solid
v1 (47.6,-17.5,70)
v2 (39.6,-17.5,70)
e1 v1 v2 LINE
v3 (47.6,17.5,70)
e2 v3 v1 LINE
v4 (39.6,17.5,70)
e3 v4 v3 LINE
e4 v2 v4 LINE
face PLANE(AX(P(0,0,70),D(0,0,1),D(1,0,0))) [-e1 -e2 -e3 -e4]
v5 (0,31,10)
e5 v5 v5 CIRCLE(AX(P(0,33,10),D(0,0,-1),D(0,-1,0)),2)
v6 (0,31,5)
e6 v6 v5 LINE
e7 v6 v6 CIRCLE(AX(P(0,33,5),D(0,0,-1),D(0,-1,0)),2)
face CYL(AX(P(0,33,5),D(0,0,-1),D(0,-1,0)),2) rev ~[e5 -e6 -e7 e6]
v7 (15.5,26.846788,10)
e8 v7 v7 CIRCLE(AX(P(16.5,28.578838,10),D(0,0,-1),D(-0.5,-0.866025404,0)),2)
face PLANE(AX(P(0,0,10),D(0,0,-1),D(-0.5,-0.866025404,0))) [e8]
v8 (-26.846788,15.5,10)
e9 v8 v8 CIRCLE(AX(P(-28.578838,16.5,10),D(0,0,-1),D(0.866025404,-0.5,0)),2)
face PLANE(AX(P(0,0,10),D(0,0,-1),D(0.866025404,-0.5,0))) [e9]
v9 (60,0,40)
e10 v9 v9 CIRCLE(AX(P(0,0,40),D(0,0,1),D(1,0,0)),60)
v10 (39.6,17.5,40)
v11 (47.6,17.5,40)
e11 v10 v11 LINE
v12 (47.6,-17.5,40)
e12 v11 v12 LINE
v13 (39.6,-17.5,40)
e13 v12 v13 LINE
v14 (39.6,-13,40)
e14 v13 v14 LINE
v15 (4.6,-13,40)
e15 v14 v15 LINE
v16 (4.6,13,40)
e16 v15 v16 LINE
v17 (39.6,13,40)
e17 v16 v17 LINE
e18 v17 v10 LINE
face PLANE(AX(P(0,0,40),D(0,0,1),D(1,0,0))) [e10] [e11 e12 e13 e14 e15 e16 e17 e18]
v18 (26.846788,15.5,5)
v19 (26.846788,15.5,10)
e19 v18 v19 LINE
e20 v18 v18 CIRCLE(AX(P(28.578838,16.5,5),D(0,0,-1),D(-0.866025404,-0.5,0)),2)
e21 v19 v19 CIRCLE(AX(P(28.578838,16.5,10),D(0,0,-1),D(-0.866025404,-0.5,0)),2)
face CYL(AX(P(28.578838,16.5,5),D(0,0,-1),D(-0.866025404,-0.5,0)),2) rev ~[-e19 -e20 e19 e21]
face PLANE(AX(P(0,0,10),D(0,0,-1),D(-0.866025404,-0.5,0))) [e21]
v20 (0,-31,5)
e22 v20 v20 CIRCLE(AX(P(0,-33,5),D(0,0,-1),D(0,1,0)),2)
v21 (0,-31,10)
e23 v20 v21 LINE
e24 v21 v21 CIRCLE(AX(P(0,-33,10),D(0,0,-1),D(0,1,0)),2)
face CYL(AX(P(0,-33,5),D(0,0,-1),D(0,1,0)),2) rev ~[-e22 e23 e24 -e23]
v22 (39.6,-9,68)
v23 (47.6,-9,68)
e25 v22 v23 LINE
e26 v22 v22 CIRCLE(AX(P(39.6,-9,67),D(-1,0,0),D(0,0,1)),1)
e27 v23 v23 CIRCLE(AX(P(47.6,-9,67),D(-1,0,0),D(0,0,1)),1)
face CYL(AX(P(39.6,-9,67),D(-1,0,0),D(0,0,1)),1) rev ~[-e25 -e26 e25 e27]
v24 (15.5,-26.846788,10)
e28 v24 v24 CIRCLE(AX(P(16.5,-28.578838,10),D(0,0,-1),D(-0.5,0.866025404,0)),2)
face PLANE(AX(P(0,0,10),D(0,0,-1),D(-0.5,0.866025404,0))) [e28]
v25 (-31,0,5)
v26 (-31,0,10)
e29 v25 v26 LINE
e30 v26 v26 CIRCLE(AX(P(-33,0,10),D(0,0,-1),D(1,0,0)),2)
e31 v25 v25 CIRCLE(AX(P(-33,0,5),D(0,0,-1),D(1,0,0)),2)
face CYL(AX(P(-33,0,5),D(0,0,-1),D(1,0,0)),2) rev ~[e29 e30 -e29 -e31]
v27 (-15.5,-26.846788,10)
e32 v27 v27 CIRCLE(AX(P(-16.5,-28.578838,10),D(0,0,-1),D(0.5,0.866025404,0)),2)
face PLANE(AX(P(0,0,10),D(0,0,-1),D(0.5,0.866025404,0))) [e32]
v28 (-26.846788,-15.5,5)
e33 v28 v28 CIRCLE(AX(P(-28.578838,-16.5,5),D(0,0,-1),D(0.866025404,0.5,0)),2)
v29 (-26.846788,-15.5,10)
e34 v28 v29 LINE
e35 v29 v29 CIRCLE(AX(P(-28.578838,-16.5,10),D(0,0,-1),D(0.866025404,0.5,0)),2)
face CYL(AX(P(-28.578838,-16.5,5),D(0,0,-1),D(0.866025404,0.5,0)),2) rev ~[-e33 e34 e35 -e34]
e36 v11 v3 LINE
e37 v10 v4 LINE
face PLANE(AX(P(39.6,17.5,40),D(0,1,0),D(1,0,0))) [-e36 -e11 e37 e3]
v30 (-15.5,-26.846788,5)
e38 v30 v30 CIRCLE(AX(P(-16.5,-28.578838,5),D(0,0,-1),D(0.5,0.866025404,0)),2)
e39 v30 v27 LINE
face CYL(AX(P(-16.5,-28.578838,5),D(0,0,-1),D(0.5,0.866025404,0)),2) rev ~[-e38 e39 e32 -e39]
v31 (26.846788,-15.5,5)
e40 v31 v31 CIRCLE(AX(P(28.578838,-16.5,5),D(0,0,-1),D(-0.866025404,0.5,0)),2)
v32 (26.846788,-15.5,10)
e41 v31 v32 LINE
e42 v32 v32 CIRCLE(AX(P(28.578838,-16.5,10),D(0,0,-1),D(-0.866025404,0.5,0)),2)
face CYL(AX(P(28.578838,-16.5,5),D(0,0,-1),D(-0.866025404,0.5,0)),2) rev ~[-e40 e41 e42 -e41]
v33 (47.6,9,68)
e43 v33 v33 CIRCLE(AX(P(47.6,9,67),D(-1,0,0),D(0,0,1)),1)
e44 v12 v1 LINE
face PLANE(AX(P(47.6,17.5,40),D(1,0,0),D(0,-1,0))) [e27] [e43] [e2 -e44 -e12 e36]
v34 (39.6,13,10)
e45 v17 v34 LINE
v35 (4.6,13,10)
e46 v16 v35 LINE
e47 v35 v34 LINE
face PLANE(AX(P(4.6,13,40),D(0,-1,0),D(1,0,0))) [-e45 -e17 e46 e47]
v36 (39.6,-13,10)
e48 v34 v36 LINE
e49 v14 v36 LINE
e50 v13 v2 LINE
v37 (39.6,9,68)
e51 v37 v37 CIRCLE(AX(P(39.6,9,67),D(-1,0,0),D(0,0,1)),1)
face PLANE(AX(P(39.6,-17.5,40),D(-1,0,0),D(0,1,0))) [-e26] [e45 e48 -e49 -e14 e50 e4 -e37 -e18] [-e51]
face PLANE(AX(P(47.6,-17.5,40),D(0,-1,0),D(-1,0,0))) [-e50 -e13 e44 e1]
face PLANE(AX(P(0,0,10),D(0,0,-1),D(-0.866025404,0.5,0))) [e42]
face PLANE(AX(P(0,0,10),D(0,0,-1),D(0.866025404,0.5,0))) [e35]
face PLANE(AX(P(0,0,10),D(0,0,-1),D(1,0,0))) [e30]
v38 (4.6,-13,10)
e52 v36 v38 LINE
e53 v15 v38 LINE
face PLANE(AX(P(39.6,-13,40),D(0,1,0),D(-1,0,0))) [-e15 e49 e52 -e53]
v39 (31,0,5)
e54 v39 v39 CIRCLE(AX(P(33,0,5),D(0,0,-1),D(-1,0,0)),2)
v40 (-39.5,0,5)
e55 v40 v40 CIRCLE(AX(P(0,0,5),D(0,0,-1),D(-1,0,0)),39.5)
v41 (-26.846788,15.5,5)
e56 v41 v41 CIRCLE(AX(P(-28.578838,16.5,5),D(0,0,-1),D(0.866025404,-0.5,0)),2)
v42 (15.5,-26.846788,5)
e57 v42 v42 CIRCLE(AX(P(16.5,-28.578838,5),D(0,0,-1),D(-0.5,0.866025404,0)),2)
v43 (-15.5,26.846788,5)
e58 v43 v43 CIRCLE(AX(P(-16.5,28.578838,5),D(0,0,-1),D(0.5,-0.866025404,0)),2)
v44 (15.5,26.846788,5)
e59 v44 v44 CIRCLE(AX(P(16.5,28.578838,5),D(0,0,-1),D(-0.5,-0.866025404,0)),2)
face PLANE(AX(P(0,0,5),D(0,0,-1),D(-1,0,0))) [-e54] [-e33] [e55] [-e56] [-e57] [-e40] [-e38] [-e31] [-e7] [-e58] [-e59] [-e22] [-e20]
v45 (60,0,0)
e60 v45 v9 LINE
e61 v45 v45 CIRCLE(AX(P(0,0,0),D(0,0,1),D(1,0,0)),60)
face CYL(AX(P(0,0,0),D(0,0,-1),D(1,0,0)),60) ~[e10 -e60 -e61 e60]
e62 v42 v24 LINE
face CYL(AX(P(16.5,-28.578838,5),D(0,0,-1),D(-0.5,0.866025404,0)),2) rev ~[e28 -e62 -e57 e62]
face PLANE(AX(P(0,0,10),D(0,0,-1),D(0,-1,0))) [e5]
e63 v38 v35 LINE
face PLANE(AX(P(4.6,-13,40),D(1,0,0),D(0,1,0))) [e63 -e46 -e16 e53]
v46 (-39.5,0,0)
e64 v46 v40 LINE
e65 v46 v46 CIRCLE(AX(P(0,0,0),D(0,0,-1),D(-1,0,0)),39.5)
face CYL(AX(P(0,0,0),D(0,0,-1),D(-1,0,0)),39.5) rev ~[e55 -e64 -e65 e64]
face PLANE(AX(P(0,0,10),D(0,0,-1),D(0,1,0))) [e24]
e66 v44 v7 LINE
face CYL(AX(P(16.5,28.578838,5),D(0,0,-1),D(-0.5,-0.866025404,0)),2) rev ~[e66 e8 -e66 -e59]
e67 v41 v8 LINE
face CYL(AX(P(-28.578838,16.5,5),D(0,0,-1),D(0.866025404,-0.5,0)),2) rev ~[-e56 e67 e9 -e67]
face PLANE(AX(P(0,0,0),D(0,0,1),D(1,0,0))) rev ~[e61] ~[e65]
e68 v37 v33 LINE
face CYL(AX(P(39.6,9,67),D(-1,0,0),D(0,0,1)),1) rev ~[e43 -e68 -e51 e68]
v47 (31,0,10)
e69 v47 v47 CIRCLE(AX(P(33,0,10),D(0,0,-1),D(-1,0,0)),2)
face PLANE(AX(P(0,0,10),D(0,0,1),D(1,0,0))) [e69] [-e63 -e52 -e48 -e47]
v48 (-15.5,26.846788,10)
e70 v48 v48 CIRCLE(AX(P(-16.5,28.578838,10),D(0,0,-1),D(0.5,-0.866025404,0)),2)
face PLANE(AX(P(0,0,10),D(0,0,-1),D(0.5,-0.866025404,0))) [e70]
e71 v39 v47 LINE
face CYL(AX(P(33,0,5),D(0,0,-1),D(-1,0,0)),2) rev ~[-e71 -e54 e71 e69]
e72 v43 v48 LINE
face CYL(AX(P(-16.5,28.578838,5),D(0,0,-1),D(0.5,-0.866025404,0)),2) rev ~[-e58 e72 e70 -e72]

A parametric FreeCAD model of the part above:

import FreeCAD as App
import Part
import Sketcher
from FreeCAD import Vector


def add_polygon(sketch, points):
    """Adds a closed chain of lines whose ends are joined by coincident constraints."""
    first, n = sketch.GeometryCount, len(points)
    for a, b in zip(points, points[1:] + points[:1]):
        sketch.addGeometry(Part.LineSegment(App.Vector(*a, 0), App.Vector(*b, 0)), False)
    for i in range(n):
        sketch.addConstraint(Sketcher.Constraint("Coincident", first + i, 2, first + (i + 1) % n, 1))

doc = App.newDocument("Part")
body = doc.addObject("PartDesign::Body", "Body")

# Sketch on XY plane
sketch1 = doc.addObject("Sketcher::SketchObject", "Sketch")
body.addObject(sketch1)
sketch1.AttachmentSupport = (doc.XY_Plane, [""])
sketch1.MapMode = "FlatFace"
sketch1.addGeometry(Part.Circle(Vector(0, 0, 0), Vector(0, 0, 1), 60), False)
sketch1.addConstraint(Sketcher.Constraint("Coincident", 0, 3, -1, 1))
sketch1.addConstraint(Sketcher.Constraint("Diameter", 0, 120.0))
pad1 = doc.addObject("PartDesign::Pad", "Pad")
body.addObject(pad1)
pad1.Profile = sketch1
pad1.Length = 40

# Sketch on XY plane
sketch2 = doc.addObject("Sketcher::SketchObject", "Sketch001")
body.addObject(sketch2)
sketch2.AttachmentSupport = (doc.XY_Plane, [""])
sketch2.MapMode = "FlatFace"
sketch2.AttachmentOffset = App.Placement(Vector(0, 0, 40), App.Rotation())
add_polygon(sketch2, [(39.6, 13), (4.6, 13), (4.6, -13), (39.6, -13)])  # lines 0-3
sketch2.addConstraint(Sketcher.Constraint("Horizontal", 0))
sketch2.addConstraint(Sketcher.Constraint("Vertical", 1))
sketch2.addConstraint(Sketcher.Constraint("Horizontal", 2))
sketch2.addConstraint(Sketcher.Constraint("Vertical", 3))
sketch2.addConstraint(Sketcher.Constraint("DistanceX", 0, 2, 0, 1, 35.0))
sketch2.addConstraint(Sketcher.Constraint("DistanceY", 1, 2, 1, 1, 26.0))
sketch2.addConstraint(Sketcher.Constraint("DistanceX", -1, 1, 0, 2, 4.6))
sketch2.addConstraint(Sketcher.Constraint("DistanceY", -1, 1, 0, 2, 13.0))
pocket1 = doc.addObject("PartDesign::Pocket", "Pocket")
body.addObject(pocket1)
pocket1.Profile = sketch2
pocket1.Length = 30

# Sketch on XY plane
sketch3 = doc.addObject("Sketcher::SketchObject", "Sketch002")
body.addObject(sketch3)
sketch3.AttachmentSupport = (doc.XY_Plane, [""])
sketch3.MapMode = "FlatFace"
sketch3.AttachmentOffset = App.Placement(Vector(0, 0, 40), App.Rotation())
add_polygon(sketch3, [(39.6, -17.5), (47.6, -17.5), (47.6, 17.5), (39.6, 17.5)])  # lines 0-3
sketch3.addConstraint(Sketcher.Constraint("Horizontal", 0))
sketch3.addConstraint(Sketcher.Constraint("Vertical", 1))
sketch3.addConstraint(Sketcher.Constraint("Horizontal", 2))
sketch3.addConstraint(Sketcher.Constraint("Vertical", 3))
sketch3.addConstraint(Sketcher.Constraint("DistanceX", 0, 1, 0, 2, 8.0))
sketch3.addConstraint(Sketcher.Constraint("DistanceY", 1, 1, 1, 2, 35.0))
sketch3.addConstraint(Sketcher.Constraint("DistanceX", -1, 1, 0, 2, 47.6))
sketch3.addConstraint(Sketcher.Constraint("DistanceY", 0, 2, -1, 1, 17.5))
pad2 = doc.addObject("PartDesign::Pad", "Pad001")
body.addObject(pad2)
pad2.Profile = sketch3
pad2.Length = 30

# Sketch on YZ plane
sketch4 = doc.addObject("Sketcher::SketchObject", "Sketch003")
body.addObject(sketch4)
sketch4.AttachmentSupport = (doc.YZ_Plane, [""])
sketch4.MapMode = "FlatFace"
sketch4.AttachmentOffset = App.Placement(Vector(0, 0, 39.6), App.Rotation())
sketch4.addGeometry(Part.Circle(Vector(9, 67, 0), Vector(0, 0, 1), 1), False)
sketch4.addGeometry(Part.Circle(Vector(-9, 67, 0), Vector(0, 0, 1), 1), False)
sketch4.addConstraint(Sketcher.Constraint("Equal", 0, 1))
sketch4.addConstraint(Sketcher.Constraint("Symmetric", 0, 3, 1, 3, -2))
sketch4.addConstraint(Sketcher.Constraint("Diameter", 0, 2.0))
sketch4.addConstraint(Sketcher.Constraint("DistanceX", 1, 3, 0, 3, 18.0))
sketch4.addConstraint(Sketcher.Constraint("DistanceY", -1, 1, 0, 3, 67.0))
pocket2 = doc.addObject("PartDesign::Pocket", "Pocket001")
body.addObject(pocket2)
pocket2.Profile = sketch4
pocket2.Length = 8
pocket2.Reversed = True

# Sketch on XY plane
sketch5 = doc.addObject("Sketcher::SketchObject", "Sketch004")
body.addObject(sketch5)
sketch5.AttachmentSupport = (doc.XY_Plane, [""])
sketch5.MapMode = "FlatFace"
sketch5.addGeometry(Part.Circle(Vector(0, 0, 0), Vector(0, 0, 1), 39.5), False)
sketch5.addConstraint(Sketcher.Constraint("Coincident", 0, 3, -1, 1))
sketch5.addConstraint(Sketcher.Constraint("Diameter", 0, 79.0))
pocket3 = doc.addObject("PartDesign::Pocket", "Pocket002")
body.addObject(pocket3)
pocket3.Profile = sketch5
pocket3.Length = 5
pocket3.Reversed = True

# Sketch on XY plane
sketch6 = doc.addObject("Sketcher::SketchObject", "Sketch005")
body.addObject(sketch6)
sketch6.AttachmentSupport = (doc.XY_Plane, [""])
sketch6.MapMode = "FlatFace"
sketch6.AttachmentOffset = App.Placement(Vector(0, 0, 5), App.Rotation())
sketch6.addGeometry(Part.Circle(Vector(33, 0, 0), Vector(0, 0, 1), 2), False)
sketch6.addConstraint(Sketcher.Constraint("PointOnObject", 0, 3, -1))
sketch6.addConstraint(Sketcher.Constraint("Diameter", 0, 4.0))
sketch6.addConstraint(Sketcher.Constraint("DistanceX", -1, 1, 0, 3, 33.0))
pocket4 = doc.addObject("PartDesign::Pocket", "Pocket003")
body.addObject(pocket4)
pocket4.Profile = sketch6
pocket4.Length = 5
pocket4.Reversed = True
doc.recompute()

polarpattern = doc.addObject("PartDesign::PolarPattern", "PolarPattern")
body.addObject(polarpattern)
polarpattern.Originals = [pocket4]
polarpattern.Axis = (doc.Z_Axis, [""])
polarpattern.Angle = 360
polarpattern.Occurrences = 12
body.Tip = polarpattern

doc.recompute()
